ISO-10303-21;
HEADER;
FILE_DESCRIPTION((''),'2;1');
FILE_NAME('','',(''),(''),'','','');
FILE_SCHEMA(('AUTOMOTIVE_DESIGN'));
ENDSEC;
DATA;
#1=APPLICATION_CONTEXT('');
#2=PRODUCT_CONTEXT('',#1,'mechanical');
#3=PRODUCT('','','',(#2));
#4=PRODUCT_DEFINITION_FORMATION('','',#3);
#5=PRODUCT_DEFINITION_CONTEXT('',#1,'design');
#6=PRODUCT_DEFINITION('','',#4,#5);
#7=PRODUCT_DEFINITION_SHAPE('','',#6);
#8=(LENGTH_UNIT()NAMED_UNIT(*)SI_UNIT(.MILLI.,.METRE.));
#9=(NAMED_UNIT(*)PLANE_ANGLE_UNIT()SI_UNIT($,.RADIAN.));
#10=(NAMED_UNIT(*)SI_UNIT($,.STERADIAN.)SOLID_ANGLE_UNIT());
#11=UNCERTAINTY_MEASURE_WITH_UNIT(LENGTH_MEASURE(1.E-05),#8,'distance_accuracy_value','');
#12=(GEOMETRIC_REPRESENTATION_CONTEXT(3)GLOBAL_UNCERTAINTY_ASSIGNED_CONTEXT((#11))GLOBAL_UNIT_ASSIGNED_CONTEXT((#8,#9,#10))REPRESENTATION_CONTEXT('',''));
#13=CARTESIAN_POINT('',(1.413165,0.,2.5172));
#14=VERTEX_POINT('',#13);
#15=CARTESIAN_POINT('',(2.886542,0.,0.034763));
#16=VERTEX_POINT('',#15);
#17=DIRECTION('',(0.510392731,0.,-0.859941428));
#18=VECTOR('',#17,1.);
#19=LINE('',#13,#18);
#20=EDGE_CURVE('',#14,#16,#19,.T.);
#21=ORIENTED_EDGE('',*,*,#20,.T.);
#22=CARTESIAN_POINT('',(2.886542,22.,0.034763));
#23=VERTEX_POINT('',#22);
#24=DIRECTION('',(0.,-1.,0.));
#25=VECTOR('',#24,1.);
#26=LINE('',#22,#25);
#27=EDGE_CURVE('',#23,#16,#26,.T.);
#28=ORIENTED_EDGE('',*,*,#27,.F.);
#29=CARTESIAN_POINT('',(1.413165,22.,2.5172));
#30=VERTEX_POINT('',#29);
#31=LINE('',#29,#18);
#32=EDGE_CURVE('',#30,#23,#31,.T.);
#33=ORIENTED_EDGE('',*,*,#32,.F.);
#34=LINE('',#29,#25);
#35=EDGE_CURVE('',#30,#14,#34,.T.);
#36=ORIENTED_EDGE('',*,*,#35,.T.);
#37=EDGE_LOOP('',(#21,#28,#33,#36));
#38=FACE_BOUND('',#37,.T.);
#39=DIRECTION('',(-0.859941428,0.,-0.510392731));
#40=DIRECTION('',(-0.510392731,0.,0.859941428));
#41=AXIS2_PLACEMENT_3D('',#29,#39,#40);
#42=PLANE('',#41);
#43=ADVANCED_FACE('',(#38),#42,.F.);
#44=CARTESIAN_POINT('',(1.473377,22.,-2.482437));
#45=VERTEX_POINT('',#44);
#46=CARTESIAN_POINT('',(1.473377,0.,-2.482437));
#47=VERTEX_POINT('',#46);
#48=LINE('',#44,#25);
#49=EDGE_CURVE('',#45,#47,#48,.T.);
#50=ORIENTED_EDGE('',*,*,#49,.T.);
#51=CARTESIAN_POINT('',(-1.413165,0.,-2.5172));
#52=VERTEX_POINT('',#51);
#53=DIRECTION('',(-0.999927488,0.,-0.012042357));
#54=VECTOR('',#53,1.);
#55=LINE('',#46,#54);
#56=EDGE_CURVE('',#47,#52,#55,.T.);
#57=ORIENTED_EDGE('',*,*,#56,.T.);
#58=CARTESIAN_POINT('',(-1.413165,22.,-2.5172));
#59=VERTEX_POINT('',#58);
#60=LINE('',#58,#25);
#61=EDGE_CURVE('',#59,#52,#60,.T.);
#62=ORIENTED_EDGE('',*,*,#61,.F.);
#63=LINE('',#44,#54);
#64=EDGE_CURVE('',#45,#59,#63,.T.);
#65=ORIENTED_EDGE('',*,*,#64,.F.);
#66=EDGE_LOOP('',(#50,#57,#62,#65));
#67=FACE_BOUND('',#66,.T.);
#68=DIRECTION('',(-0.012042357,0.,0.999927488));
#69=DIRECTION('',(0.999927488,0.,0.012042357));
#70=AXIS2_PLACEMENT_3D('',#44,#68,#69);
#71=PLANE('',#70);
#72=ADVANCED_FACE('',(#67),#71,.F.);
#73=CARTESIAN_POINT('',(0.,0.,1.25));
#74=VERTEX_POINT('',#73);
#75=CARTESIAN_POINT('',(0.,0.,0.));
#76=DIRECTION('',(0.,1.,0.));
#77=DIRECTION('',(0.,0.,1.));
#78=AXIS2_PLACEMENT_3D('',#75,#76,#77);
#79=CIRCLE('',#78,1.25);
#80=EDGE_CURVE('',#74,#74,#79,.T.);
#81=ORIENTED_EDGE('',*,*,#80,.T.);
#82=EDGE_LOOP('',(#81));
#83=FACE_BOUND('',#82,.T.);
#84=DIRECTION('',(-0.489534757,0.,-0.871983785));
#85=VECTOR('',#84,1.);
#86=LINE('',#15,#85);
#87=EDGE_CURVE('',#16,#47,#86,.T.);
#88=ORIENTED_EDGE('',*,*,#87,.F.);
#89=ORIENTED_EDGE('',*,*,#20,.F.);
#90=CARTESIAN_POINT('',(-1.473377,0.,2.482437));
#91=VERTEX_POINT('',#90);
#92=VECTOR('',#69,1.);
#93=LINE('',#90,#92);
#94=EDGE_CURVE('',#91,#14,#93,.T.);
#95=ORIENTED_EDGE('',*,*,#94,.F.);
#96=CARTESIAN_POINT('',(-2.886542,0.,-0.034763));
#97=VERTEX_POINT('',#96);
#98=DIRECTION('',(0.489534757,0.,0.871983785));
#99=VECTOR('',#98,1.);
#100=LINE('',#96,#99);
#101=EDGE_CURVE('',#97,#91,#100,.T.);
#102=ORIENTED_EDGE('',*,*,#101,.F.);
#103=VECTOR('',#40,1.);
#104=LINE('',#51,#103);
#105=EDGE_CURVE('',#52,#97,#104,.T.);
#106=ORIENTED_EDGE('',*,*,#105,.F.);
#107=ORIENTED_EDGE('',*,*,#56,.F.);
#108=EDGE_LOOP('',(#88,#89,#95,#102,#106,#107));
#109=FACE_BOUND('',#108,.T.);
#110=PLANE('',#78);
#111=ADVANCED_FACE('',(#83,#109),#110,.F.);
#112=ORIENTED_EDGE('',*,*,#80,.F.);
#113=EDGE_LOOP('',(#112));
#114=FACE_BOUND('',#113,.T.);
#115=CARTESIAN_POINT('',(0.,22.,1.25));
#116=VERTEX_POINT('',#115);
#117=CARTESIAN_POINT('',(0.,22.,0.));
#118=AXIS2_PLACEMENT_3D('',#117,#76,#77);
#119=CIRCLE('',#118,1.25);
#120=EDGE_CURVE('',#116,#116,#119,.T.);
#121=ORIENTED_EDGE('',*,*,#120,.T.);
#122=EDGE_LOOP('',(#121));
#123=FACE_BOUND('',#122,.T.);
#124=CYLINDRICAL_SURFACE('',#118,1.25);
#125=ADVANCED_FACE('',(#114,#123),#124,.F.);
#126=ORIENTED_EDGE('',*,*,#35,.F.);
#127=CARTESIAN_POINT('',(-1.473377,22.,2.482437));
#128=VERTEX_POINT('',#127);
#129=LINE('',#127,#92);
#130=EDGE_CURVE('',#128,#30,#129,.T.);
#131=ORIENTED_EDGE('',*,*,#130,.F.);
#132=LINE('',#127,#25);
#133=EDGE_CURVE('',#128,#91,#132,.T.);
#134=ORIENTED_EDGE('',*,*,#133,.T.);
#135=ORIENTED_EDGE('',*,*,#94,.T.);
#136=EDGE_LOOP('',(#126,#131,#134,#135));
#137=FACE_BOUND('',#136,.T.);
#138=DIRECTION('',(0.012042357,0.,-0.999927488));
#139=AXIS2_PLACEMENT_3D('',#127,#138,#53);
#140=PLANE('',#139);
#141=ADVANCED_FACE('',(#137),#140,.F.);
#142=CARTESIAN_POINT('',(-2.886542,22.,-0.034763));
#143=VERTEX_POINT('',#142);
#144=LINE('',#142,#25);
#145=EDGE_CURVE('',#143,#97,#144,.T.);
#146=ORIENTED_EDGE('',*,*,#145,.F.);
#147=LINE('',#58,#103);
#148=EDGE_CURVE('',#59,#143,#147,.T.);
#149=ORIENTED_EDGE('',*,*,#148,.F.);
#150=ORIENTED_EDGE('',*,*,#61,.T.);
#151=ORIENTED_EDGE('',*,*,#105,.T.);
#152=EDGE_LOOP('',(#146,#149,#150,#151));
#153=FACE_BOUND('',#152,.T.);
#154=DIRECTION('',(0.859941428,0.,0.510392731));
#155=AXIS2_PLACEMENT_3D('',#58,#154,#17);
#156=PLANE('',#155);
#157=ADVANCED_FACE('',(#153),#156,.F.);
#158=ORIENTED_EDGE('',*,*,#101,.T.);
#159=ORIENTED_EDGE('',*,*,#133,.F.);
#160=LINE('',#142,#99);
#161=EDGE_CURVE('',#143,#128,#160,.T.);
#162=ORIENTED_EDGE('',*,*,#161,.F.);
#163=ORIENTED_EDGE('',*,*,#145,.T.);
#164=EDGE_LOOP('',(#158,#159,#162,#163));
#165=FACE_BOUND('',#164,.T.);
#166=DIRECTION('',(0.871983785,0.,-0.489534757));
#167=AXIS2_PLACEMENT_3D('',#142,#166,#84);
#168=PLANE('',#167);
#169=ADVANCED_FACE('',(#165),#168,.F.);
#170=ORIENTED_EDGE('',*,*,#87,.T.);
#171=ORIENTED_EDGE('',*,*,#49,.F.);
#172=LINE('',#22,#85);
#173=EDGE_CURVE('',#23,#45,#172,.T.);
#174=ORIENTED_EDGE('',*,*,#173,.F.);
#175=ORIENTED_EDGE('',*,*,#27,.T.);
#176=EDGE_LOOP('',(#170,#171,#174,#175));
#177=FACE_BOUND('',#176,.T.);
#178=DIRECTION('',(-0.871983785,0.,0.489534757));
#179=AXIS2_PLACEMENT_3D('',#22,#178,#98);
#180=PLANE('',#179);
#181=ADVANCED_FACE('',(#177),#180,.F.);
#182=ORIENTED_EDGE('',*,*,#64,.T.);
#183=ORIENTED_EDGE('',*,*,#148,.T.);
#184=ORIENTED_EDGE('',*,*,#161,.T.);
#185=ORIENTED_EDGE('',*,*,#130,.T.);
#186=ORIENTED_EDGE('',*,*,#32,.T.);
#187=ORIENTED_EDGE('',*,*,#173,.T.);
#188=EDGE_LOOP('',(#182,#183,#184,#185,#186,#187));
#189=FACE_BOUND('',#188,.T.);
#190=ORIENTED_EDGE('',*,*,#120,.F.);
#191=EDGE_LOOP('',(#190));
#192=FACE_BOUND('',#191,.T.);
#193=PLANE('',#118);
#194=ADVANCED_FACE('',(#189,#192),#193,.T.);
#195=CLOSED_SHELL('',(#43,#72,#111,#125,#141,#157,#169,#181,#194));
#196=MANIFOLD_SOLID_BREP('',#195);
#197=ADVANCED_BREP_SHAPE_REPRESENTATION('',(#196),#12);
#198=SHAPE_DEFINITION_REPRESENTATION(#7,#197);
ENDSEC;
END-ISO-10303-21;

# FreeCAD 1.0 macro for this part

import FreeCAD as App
import Part
import Sketcher
from FreeCAD import Vector
Q = App.Units.Quantity


def add_polygon(sketch, points):
    """Adds a closed chain of lines whose ends are joined by coincident constraints."""
    first, n = sketch.GeometryCount, len(points)
    for a, b in zip(points, points[1:] + points[:1]):
        sketch.addGeometry(Part.LineSegment(App.Vector(*a, 0), App.Vector(*b, 0)), False)
    for i in range(n):
        sketch.addConstraint(Sketcher.Constraint("Coincident", first + i, 2, first + (i + 1) % n, 1))

doc = App.newDocument("Part")
body = doc.addObject("PartDesign::Body", "Body")

sketch1 = body.newObject("Sketcher::SketchObject", "Sketch")
sketch1.AttachmentSupport = (doc.getObject("XZ_Plane"), [""])
sketch1.MapMode = "FlatFace"
add_polygon(sketch1, [(1.4, 2.5), (2.9, 0), (1.5, -2.5), (-1.4, -2.5), (-2.9, 0), (-1.5, 2.5)])
sketch1.addConstraint([
    Sketcher.Constraint("Symmetric", 0, 2, 3, 2, -1, 1),
    Sketcher.Constraint("Symmetric", 1, 2, 4, 2, -1, 1),
    Sketcher.Constraint("Symmetric", 2, 2, 5, 2, -1, 1),
    Sketcher.Constraint("Equal", 0, 1),
    Sketcher.Constraint("Equal", 1, 2),
    Sketcher.Constraint("Angle", 0, Q("-59.310007 deg")),
    Sketcher.Constraint("Angle", 1, Q("-119.310007 deg")),
    Sketcher.Constraint("Angle", 2, Q("-179.310007 deg")),
    Sketcher.Constraint("DistanceY", 2, 2, -1, 1, 2.5172),
])
pad1 = body.newObject("PartDesign::Pad", "Pad")
pad1.Profile = sketch1
pad1.Length = 22
pad1.Reversed = True

sketch2 = body.newObject("Sketcher::SketchObject", "Sketch001")
sketch2.AttachmentSupport = (doc.getObject("XZ_Plane"), [""])
sketch2.MapMode = "FlatFace"
sketch2.AttachmentOffset = App.Placement(Vector(0, 0, -22), App.Rotation())
sketch2.addGeometry(Part.Circle(Vector(0, 0, 0), Vector(0, 0, 1), 1.2), False)
sketch2.addConstraint([
    Sketcher.Constraint("Coincident", 0, 3, -1, 1),
    Sketcher.Constraint("Diameter", 0, 2.5),
])
doc.recompute()
hole = body.newObject("PartDesign::Hole", "Hole")
hole.Profile = sketch2
hole.ThreadType = "None"
hole.Diameter = 2.5
hole.DepthType = "Dimension"
hole.Depth = 22
hole.DrillPoint = "Flat"
hole.Reversed = True

doc.recompute()
